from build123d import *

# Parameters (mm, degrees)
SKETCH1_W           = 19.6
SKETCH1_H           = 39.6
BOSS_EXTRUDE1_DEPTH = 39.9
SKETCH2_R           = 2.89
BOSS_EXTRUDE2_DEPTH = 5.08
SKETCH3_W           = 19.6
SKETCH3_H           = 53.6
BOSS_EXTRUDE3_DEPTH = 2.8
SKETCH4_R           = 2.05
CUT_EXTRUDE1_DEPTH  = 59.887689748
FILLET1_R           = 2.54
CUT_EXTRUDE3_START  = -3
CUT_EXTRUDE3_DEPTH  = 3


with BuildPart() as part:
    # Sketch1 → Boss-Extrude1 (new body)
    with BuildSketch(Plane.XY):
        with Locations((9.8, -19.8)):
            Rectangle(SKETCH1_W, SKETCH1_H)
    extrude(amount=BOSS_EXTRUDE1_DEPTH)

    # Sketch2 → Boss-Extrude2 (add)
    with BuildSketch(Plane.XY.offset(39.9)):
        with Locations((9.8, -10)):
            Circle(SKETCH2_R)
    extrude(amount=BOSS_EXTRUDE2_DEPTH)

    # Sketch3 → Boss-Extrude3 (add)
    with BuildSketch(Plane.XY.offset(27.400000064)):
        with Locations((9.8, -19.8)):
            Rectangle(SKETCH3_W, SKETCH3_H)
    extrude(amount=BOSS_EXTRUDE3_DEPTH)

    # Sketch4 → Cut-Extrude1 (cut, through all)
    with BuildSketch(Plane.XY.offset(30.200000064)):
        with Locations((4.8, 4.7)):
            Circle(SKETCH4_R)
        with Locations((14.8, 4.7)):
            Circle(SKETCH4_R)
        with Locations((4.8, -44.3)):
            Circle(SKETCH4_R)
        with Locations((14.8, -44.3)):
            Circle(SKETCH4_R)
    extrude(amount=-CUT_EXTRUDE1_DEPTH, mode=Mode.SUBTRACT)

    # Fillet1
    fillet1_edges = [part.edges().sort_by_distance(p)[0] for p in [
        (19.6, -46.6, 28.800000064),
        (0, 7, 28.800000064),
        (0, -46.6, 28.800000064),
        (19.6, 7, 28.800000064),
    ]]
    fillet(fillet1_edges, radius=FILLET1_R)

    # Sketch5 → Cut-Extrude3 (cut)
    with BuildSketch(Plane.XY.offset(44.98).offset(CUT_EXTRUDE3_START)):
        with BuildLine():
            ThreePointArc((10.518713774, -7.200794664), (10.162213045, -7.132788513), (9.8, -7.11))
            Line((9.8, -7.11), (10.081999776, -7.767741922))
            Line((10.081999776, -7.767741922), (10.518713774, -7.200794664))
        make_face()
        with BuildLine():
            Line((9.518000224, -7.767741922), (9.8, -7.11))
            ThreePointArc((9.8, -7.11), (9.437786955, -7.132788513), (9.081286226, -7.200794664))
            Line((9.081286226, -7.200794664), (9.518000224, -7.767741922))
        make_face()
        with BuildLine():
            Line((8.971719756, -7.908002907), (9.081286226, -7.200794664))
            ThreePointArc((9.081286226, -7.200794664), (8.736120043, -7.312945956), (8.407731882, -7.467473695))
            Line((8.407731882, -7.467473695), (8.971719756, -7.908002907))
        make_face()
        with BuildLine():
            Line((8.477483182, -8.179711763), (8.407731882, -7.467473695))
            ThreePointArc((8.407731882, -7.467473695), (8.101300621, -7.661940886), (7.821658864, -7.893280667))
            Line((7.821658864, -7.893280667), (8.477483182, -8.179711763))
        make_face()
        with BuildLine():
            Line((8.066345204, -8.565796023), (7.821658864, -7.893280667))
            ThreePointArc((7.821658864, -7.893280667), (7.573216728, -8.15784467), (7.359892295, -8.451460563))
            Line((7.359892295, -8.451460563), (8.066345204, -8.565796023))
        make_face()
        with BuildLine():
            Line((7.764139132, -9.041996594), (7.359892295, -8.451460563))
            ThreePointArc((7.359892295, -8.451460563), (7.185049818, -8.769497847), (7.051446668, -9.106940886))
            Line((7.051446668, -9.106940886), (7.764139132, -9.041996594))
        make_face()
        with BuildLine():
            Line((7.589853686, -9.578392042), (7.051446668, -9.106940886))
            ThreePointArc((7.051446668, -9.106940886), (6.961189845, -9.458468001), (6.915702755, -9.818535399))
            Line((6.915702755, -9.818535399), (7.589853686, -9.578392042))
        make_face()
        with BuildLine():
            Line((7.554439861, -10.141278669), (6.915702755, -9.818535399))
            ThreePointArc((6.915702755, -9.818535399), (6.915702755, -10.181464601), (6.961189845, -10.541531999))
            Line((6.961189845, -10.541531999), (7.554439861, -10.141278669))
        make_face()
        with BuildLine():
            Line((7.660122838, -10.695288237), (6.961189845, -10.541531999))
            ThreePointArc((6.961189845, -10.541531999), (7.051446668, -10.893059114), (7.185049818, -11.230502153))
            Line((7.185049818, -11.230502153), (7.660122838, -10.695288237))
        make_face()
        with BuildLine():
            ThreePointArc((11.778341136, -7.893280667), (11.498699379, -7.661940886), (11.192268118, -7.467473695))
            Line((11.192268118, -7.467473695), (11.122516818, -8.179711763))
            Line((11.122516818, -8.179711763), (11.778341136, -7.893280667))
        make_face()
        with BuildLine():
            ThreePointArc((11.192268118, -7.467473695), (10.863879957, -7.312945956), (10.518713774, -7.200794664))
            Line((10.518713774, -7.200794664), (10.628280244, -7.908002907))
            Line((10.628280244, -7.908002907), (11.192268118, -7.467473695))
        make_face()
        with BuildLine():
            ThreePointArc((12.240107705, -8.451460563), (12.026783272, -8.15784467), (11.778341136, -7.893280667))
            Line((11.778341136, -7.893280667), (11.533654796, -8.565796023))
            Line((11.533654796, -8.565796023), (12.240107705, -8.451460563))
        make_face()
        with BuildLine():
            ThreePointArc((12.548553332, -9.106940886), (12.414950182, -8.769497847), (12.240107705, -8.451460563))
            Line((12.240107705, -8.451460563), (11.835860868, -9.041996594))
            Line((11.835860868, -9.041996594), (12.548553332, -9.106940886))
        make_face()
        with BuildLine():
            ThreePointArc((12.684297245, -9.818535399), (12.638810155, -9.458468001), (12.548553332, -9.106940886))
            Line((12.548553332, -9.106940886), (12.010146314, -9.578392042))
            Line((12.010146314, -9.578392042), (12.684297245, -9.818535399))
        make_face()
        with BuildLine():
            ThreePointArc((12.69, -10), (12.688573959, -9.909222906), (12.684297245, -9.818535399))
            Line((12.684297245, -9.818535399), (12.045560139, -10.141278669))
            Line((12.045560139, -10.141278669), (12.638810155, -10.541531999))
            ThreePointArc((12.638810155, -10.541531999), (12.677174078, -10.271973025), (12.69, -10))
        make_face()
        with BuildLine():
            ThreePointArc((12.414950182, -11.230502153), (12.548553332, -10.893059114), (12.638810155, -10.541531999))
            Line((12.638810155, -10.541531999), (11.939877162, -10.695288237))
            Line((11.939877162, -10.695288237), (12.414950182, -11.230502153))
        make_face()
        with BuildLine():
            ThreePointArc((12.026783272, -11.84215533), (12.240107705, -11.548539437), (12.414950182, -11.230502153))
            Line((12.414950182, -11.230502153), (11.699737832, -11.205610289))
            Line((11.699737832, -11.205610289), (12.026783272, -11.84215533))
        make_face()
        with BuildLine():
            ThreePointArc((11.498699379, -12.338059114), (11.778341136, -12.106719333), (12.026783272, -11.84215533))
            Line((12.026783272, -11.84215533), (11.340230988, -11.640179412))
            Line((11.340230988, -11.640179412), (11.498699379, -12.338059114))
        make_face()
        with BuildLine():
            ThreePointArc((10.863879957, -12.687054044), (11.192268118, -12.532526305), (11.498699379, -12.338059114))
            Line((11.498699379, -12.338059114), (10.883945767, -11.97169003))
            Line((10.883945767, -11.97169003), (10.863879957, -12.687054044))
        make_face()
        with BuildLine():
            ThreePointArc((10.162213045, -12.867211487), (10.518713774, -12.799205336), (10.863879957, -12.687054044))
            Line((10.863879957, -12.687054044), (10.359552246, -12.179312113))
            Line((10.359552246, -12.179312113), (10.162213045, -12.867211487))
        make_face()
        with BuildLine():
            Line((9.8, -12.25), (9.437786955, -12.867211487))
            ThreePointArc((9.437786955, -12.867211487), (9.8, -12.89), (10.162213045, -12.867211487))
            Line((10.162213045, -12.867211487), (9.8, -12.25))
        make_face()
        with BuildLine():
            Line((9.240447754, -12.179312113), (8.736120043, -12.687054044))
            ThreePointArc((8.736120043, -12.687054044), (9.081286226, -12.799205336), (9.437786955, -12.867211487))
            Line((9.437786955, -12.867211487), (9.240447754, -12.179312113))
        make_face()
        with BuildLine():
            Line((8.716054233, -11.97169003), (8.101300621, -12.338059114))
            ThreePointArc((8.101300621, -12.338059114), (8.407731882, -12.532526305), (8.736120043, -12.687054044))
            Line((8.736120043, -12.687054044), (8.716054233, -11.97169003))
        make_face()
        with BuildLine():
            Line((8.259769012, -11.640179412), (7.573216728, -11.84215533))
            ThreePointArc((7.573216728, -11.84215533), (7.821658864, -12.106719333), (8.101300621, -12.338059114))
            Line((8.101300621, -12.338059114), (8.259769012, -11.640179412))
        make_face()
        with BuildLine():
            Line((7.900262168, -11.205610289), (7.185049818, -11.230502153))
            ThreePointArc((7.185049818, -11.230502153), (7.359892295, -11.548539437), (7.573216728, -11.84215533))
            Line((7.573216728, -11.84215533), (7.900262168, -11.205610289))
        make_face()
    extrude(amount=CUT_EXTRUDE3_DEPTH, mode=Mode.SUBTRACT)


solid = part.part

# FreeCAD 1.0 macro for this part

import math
import FreeCAD as App
import Part
import Sketcher
from FreeCAD import Vector


def edges_at(feature, points):
    """Names of the edges that pass closest to the given points."""
    edges = feature.Shape.Edges
    near = lambda p: min(range(len(edges)), key=lambda i: edges[i].distToShape(Part.Vertex(*p))[0])
    return sorted({f"Edge{near(p) + 1}" for p in points})


def add_polygon(sketch, points):
    """Adds a closed chain of lines whose ends are joined by coincident constraints."""
    first, n = sketch.GeometryCount, len(points)
    for a, b in zip(points, points[1:] + points[:1]):
        sketch.addGeometry(Part.LineSegment(App.Vector(*a, 0), App.Vector(*b, 0)), False)
    for i in range(n):
        sketch.addConstraint(Sketcher.Constraint("Coincident", first + i, 2, first + (i + 1) % n, 1))

doc = App.newDocument("Part")
body = doc.addObject("PartDesign::Body", "Body")

# Sketch on XY plane
sketch1 = doc.addObject("Sketcher::SketchObject", "Sketch")
body.addObject(sketch1)
sketch1.AttachmentSupport = (doc.XY_Plane, [""])
sketch1.MapMode = "FlatFace"
add_polygon(sketch1, [(0, 0), (0, -39.6), (19.6, -39.6), (19.6, 0)])  # lines 0-3
sketch1.addConstraint([
    Sketcher.Constraint("Vertical", 0),
    Sketcher.Constraint("Horizontal", 1),
    Sketcher.Constraint("Vertical", 2),
    Sketcher.Constraint("Horizontal", 3),
    Sketcher.Constraint("Coincident", 3, 2, -1, 1),
    Sketcher.Constraint("DistanceX", 1, 1, 1, 2, 19.6),
    Sketcher.Constraint("DistanceY", 0, 2, 0, 1, 39.6),
])
pad1 = doc.addObject("PartDesign::Pad", "Pad")
body.addObject(pad1)
pad1.Profile = sketch1
pad1.Length = 39.9

# Sketch on XY plane
sketch2 = doc.addObject("Sketcher::SketchObject", "Sketch001")
body.addObject(sketch2)
sketch2.AttachmentSupport = (doc.XY_Plane, [""])
sketch2.MapMode = "FlatFace"
sketch2.AttachmentOffset = App.Placement(Vector(0, 0, 39.9), App.Rotation())
sketch2.addGeometry(Part.Circle(Vector(9.8, -10, 0), Vector(0, 0, 1), 2.89), False)
sketch2.addConstraint([
    Sketcher.Constraint("Diameter", 0, 5.78),
    Sketcher.Constraint("DistanceY", 0, 3, -1, 1, 10.0),
    Sketcher.Constraint("DistanceX", -1, 1, 0, 3, 9.8),
])
pad2 = doc.addObject("PartDesign::Pad", "Pad001")
body.addObject(pad2)
pad2.Profile = sketch2
pad2.Length = 5.08

# Sketch on XY plane
sketch3 = doc.addObject("Sketcher::SketchObject", "Sketch002")
body.addObject(sketch3)
sketch3.AttachmentSupport = (doc.XY_Plane, [""])
sketch3.MapMode = "FlatFace"
sketch3.AttachmentOffset = App.Placement(Vector(0, 0, 27.4), App.Rotation())
add_polygon(sketch3, [(0, 7), (0, -46.6), (19.6, -46.6), (19.6, 7)])  # lines 0-3
sketch3.addConstraint([
    Sketcher.Constraint("Vertical", 0),
    Sketcher.Constraint("Horizontal", 1),
    Sketcher.Constraint("Vertical", 2),
    Sketcher.Constraint("Horizontal", 3),
    Sketcher.Constraint("PointOnObject", 0, 2, -2),
    Sketcher.Constraint("DistanceX", 1, 1, 1, 2, 19.6),
    Sketcher.Constraint("DistanceY", 0, 2, 0, 1, 53.6),
    Sketcher.Constraint("DistanceY", -1, 1, 2, 2, 7.0),
])
pad3 = doc.addObject("PartDesign::Pad", "Pad002")
body.addObject(pad3)
pad3.Profile = sketch3
pad3.Length = 2.8

# Sketch on XY plane
sketch4 = doc.addObject("Sketcher::SketchObject", "Sketch003")
body.addObject(sketch4)
sketch4.AttachmentSupport = (doc.XY_Plane, [""])
sketch4.MapMode = "FlatFace"
sketch4.AttachmentOffset = App.Placement(Vector(0, 0, 30.2), App.Rotation())
sketch4.addGeometry([
    Part.Circle(Vector(4.8, 4.7, 0), Vector(0, 0, 1), 2.05),
    Part.Circle(Vector(14.8, 4.7, 0), Vector(0, 0, 1), 2.05),
    Part.Circle(Vector(4.8, -44.3, 0), Vector(0, 0, 1), 2.05),
    Part.Circle(Vector(14.8, -44.3, 0), Vector(0, 0, 1), 2.05),
], False)
sketch4.addConstraint([
    Sketcher.Constraint("Equal", 0, 1),
    Sketcher.Constraint("Equal", 1, 2),
    Sketcher.Constraint("Equal", 2, 3),
    Sketcher.Constraint("Horizontal", 0, 3, 1, 3),
    Sketcher.Constraint("Horizontal", 2, 3, 3, 3),
    Sketcher.Constraint("Vertical", 0, 3, 2, 3),
    Sketcher.Constraint("Vertical", 1, 3, 3, 3),
    Sketcher.Constraint("Diameter", 0, 4.1),
    Sketcher.Constraint("DistanceX", 0, 3, 1, 3, 10.0),
    Sketcher.Constraint("DistanceY", 2, 3, 0, 3, 49.0),
    Sketcher.Constraint("DistanceX", -1, 1, 0, 3, 4.8),
    Sketcher.Constraint("DistanceY", -1, 1, 0, 3, 4.7),
])
pocket1 = doc.addObject("PartDesign::Pocket", "Pocket")
body.addObject(pocket1)
pocket1.Profile = sketch4
pocket1.Type = "ThroughAll"
doc.recompute()

fillet = doc.addObject("PartDesign::Fillet", "Fillet")
body.addObject(fillet)
fillet.Base = (pocket1, edges_at(pocket1, [
    (19.6, -46.6, 28.8),
    (0, 7, 28.8),
    (0, -46.6, 28.8),
    (19.6, 7, 28.8),
]))
fillet.Radius = 2.54

# Sketch on XY plane
sketch5 = doc.addObject("Sketcher::SketchObject", "Sketch004")
body.addObject(sketch5)
sketch5.AttachmentSupport = (doc.XY_Plane, [""])
sketch5.MapMode = "FlatFace"
sketch5.AttachmentOffset = App.Placement(Vector(0, 0, 41.98), App.Rotation())
sketch5.addGeometry([
    Part.ArcOfCircle(Part.Circle(Vector(9.8, -10, 0), Vector(0, 0, 1), 2.89), math.radians(75.6), math.radians(90)),  # 0
    Part.LineSegment(Vector(9.8, -7.11, 0), Vector(10.082, -7.767742, 0)),  # 1
    Part.LineSegment(Vector(10.082, -7.767742, 0), Vector(10.518714, -7.200795, 0)),  # 2
    Part.LineSegment(Vector(9.518, -7.767742, 0), Vector(9.8, -7.11, 0)),  # 3
    Part.ArcOfCircle(Part.Circle(Vector(9.8, -10, 0), Vector(0, 0, 1), 2.89), math.radians(90), math.radians(104.4)),  # 4
    Part.LineSegment(Vector(9.081286, -7.200795, 0), Vector(9.518, -7.767742, 0)),  # 5
    Part.LineSegment(Vector(8.97172, -7.908003, 0), Vector(9.081286, -7.200795, 0)),  # 6
    Part.ArcOfCircle(Part.Circle(Vector(9.8, -10, 0), Vector(0, 0, 1), 2.89), math.radians(104.4), math.radians(118.8)),  # 7
    Part.LineSegment(Vector(8.407732, -7.467474, 0), Vector(8.97172, -7.908003, 0)),  # 8
    Part.LineSegment(Vector(8.477483, -8.179712, 0), Vector(8.407732, -7.467474, 0)),  # 9
    Part.ArcOfCircle(Part.Circle(Vector(9.8, -10, 0), Vector(0, 0, 1), 2.89), math.radians(118.8), math.radians(133.2)),  # 10
    Part.LineSegment(Vector(7.821659, -7.893281, 0), Vector(8.477483, -8.179712, 0)),  # 11
    Part.LineSegment(Vector(8.066345, -8.565796, 0), Vector(7.821659, -7.893281, 0)),  # 12
    Part.ArcOfCircle(Part.Circle(Vector(9.8, -10, 0), Vector(0, 0, 1), 2.89), math.radians(133.2), math.radians(147.6)),  # 13
    Part.LineSegment(Vector(7.359892, -8.451461, 0), Vector(8.066345, -8.565796, 0)),  # 14
    Part.LineSegment(Vector(7.764139, -9.041997, 0), Vector(7.359892, -8.451461, 0)),  # 15
    Part.ArcOfCircle(Part.Circle(Vector(9.8, -10, 0), Vector(0, 0, 1), 2.89), math.radians(147.6), math.radians(162)),  # 16
    Part.LineSegment(Vector(7.051447, -9.106941, 0), Vector(7.764139, -9.041997, 0)),  # 17
    Part.LineSegment(Vector(7.589854, -9.578392, 0), Vector(7.051447, -9.106941, 0)),  # 18
    Part.ArcOfCircle(Part.Circle(Vector(9.8, -10, 0), Vector(0, 0, 1), 2.89), math.radians(162), math.radians(176.4)),  # 19
    Part.LineSegment(Vector(6.915703, -9.818535, 0), Vector(7.589854, -9.578392, 0)),  # 20
    Part.LineSegment(Vector(7.55444, -10.141279, 0), Vector(6.915703, -9.818535, 0)),  # 21
    Part.ArcOfCircle(Part.Circle(Vector(9.8, -10, 0), Vector(0, 0, 1), 2.89), math.radians(176.4), math.radians(190.8)),  # 22
    Part.LineSegment(Vector(6.96119, -10.541532, 0), Vector(7.55444, -10.141279, 0)),  # 23
    Part.LineSegment(Vector(7.660123, -10.695288, 0), Vector(6.96119, -10.541532, 0)),  # 24
    Part.ArcOfCircle(Part.Circle(Vector(9.8, -10, 0), Vector(0, 0, 1), 2.89), math.radians(-169.2), math.radians(-154.8)),  # 25
    Part.LineSegment(Vector(7.18505, -11.230502, 0), Vector(7.660123, -10.695288, 0)),  # 26
    Part.ArcOfCircle(Part.Circle(Vector(9.8, -10, 0), Vector(0, 0, 1), 2.89), math.radians(46.8), math.radians(61.2)),  # 27
    Part.LineSegment(Vector(11.192268, -7.467474, 0), Vector(11.122517, -8.179712, 0)),  # 28
    Part.LineSegment(Vector(11.122517, -8.179712, 0), Vector(11.778341, -7.893281, 0)),  # 29
    Part.ArcOfCircle(Part.Circle(Vector(9.8, -10, 0), Vector(0, 0, 1), 2.89), math.radians(61.2), math.radians(75.6)),  # 30
    Part.LineSegment(Vector(10.518714, -7.200795, 0), Vector(10.62828, -7.908003, 0)),  # 31
    Part.LineSegment(Vector(10.62828, -7.908003, 0), Vector(11.192268, -7.467474, 0)),  # 32
    Part.ArcOfCircle(Part.Circle(Vector(9.8, -10, 0), Vector(0, 0, 1), 2.89), math.radians(32.4), math.radians(46.8)),  # 33
    Part.LineSegment(Vector(11.778341, -7.893281, 0), Vector(11.533655, -8.565796, 0)),  # 34
    Part.LineSegment(Vector(11.533655, -8.565796, 0), Vector(12.240108, -8.451461, 0)),  # 35
    Part.ArcOfCircle(Part.Circle(Vector(9.8, -10, 0), Vector(0, 0, 1), 2.89), math.radians(18), math.radians(32.4)),  # 36
    Part.LineSegment(Vector(12.240108, -8.451461, 0), Vector(11.835861, -9.041997, 0)),  # 37
    Part.LineSegment(Vector(11.835861, -9.041997, 0), Vector(12.548553, -9.106941, 0)),  # 38
    Part.ArcOfCircle(Part.Circle(Vector(9.8, -10, 0), Vector(0, 0, 1), 2.89), math.radians(3.6), math.radians(18)),  # 39
    Part.LineSegment(Vector(12.548553, -9.106941, 0), Vector(12.010146, -9.578392, 0)),  # 40
    Part.LineSegment(Vector(12.010146, -9.578392, 0), Vector(12.684297, -9.818535, 0)),  # 41
    Part.ArcOfCircle(Part.Circle(Vector(9.799999, -10, 0), Vector(0, 0, 1), 2.890001), math.radians(0.000001), math.radians(3.6)),  # 42
    Part.LineSegment(Vector(12.684297, -9.818535, 0), Vector(12.04556, -10.141279, 0)),  # 43
    Part.LineSegment(Vector(12.04556, -10.141279, 0), Vector(12.63881, -10.541532, 0)),  # 44
    Part.ArcOfCircle(Part.Circle(Vector(9.8, -10, 0), Vector(0, 0, 1), 2.89), math.radians(-10.8), math.radians(0)),  # 45
    Part.ArcOfCircle(Part.Circle(Vector(9.8, -10, 0), Vector(0, 0, 1), 2.89), math.radians(-25.2), math.radians(-10.8)),  # 46
    Part.LineSegment(Vector(12.63881, -10.541532, 0), Vector(11.939877, -10.695288, 0)),  # 47
    Part.LineSegment(Vector(11.939877, -10.695288, 0), Vector(12.41495, -11.230502, 0)),  # 48
    Part.ArcOfCircle(Part.Circle(Vector(9.8, -10, 0), Vector(0, 0, 1), 2.89), math.radians(-39.6), math.radians(-25.2)),  # 49
    Part.LineSegment(Vector(12.41495, -11.230502, 0), Vector(11.699738, -11.20561, 0)),  # 50
    Part.LineSegment(Vector(11.699738, -11.20561, 0), Vector(12.026783, -11.842155, 0)),  # 51
    Part.ArcOfCircle(Part.Circle(Vector(9.8, -10, 0), Vector(0, 0, 1), 2.89), math.radians(-54), math.radians(-39.6)),  # 52
    Part.LineSegment(Vector(12.026783, -11.842155, 0), Vector(11.340231, -11.640179, 0)),  # 53
    Part.LineSegment(Vector(11.340231, -11.640179, 0), Vector(11.498699, -12.338059, 0)),  # 54
    Part.ArcOfCircle(Part.Circle(Vector(9.8, -10, 0), Vector(0, 0, 1), 2.89), math.radians(-68.4), math.radians(-54)),  # 55
    Part.LineSegment(Vector(11.498699, -12.338059, 0), Vector(10.883946, -11.97169, 0)),  # 56
    Part.LineSegment(Vector(10.883946, -11.97169, 0), Vector(10.86388, -12.687054, 0)),  # 57
    Part.ArcOfCircle(Part.Circle(Vector(9.8, -10, 0), Vector(0, 0, 1), 2.89), math.radians(-82.8), math.radians(-68.4)),  # 58
    Part.LineSegment(Vector(10.86388, -12.687054, 0), Vector(10.359552, -12.179312, 0)),  # 59
    Part.LineSegment(Vector(10.359552, -12.179312, 0), Vector(10.162213, -12.867211, 0)),  # 60
    Part.LineSegment(Vector(9.8, -12.25, 0), Vector(9.437787, -12.867211, 0)),  # 61
    Part.ArcOfCircle(Part.Circle(Vector(9.8, -10, 0), Vector(0, 0, 1), 2.89), math.radians(-97.2), math.radians(-82.8)),  # 62
    Part.LineSegment(Vector(10.162213, -12.867211, 0), Vector(9.8, -12.25, 0)),  # 63
    Part.LineSegment(Vector(9.240448, -12.179312, 0), Vector(8.73612, -12.687054, 0)),  # 64
    Part.ArcOfCircle(Part.Circle(Vector(9.8, -10, 0), Vector(0, 0, 1), 2.89), math.radians(-111.6), math.radians(-97.2)),  # 65
    Part.LineSegment(Vector(9.437787, -12.867211, 0), Vector(9.240448, -12.179312, 0)),  # 66
    Part.LineSegment(Vector(8.716054, -11.97169, 0), Vector(8.101301, -12.338059, 0)),  # 67
    Part.ArcOfCircle(Part.Circle(Vector(9.8, -10, 0), Vector(0, 0, 1), 2.89), math.radians(-126), math.radians(-111.6)),  # 68
    Part.LineSegment(Vector(8.73612, -12.687054, 0), Vector(8.716054, -11.97169, 0)),  # 69
    Part.LineSegment(Vector(8.259769, -11.640179, 0), Vector(7.573217, -11.842155, 0)),  # 70
    Part.ArcOfCircle(Part.Circle(Vector(9.8, -10, 0), Vector(0, 0, 1), 2.89), math.radians(-140.4), math.radians(-126)),  # 71
    Part.LineSegment(Vector(8.101301, -12.338059, 0), Vector(8.259769, -11.640179, 0)),  # 72
    Part.LineSegment(Vector(7.900262, -11.20561, 0), Vector(7.18505, -11.230502, 0)),  # 73
    Part.ArcOfCircle(Part.Circle(Vector(9.8, -10, 0), Vector(0, 0, 1), 2.89), math.radians(-154.8), math.radians(-140.4)),  # 74
    Part.LineSegment(Vector(7.573217, -11.842155, 0), Vector(7.900262, -11.20561, 0)),  # 75
], False)
sketch5.addConstraint([
    Sketcher.Constraint("Coincident", 0, 2, 1, 1),
    Sketcher.Constraint("Coincident", 1, 2, 2, 1),
    Sketcher.Constraint("Coincident", 2, 2, 0, 1),
    Sketcher.Constraint("Coincident", 3, 2, 4, 1),
    Sketcher.Constraint("Coincident", 4, 2, 5, 1),
    Sketcher.Constraint("Coincident", 5, 2, 3, 1),
    Sketcher.Constraint("Coincident", 6, 2, 7, 1),
    Sketcher.Constraint("Coincident", 7, 2, 8, 1),
    Sketcher.Constraint("Coincident", 8, 2, 6, 1),
    Sketcher.Constraint("Coincident", 9, 2, 10, 1),
    Sketcher.Constraint("Coincident", 10, 2, 11, 1),
    Sketcher.Constraint("Coincident", 11, 2, 9, 1),
    Sketcher.Constraint("Coincident", 12, 2, 13, 1),
    Sketcher.Constraint("Coincident", 13, 2, 14, 1),
    Sketcher.Constraint("Coincident", 14, 2, 12, 1),
    Sketcher.Constraint("Coincident", 15, 2, 16, 1),
    Sketcher.Constraint("Coincident", 16, 2, 17, 1),
    Sketcher.Constraint("Coincident", 17, 2, 15, 1),
    Sketcher.Constraint("Coincident", 18, 2, 19, 1),
    Sketcher.Constraint("Coincident", 19, 2, 20, 1),
    Sketcher.Constraint("Coincident", 20, 2, 18, 1),
    Sketcher.Constraint("Coincident", 21, 2, 22, 1),
    Sketcher.Constraint("Coincident", 22, 2, 23, 1),
    Sketcher.Constraint("Coincident", 23, 2, 21, 1),
    Sketcher.Constraint("Coincident", 24, 2, 25, 1),
    Sketcher.Constraint("Coincident", 25, 2, 26, 1),
    Sketcher.Constraint("Coincident", 26, 2, 24, 1),
    Sketcher.Constraint("Coincident", 27, 2, 28, 1),
    Sketcher.Constraint("Coincident", 28, 2, 29, 1),
    Sketcher.Constraint("Coincident", 29, 2, 27, 1),
    Sketcher.Constraint("Coincident", 30, 2, 31, 1),
    Sketcher.Constraint("Coincident", 31, 2, 32, 1),
    Sketcher.Constraint("Coincident", 32, 2, 30, 1),
    Sketcher.Constraint("Coincident", 33, 2, 34, 1),
    Sketcher.Constraint("Coincident", 34, 2, 35, 1),
    Sketcher.Constraint("Coincident", 35, 2, 33, 1),
    Sketcher.Constraint("Coincident", 36, 2, 37, 1),
    Sketcher.Constraint("Coincident", 37, 2, 38, 1),
    Sketcher.Constraint("Coincident", 38, 2, 36, 1),
    Sketcher.Constraint("Coincident", 39, 2, 40, 1),
    Sketcher.Constraint("Coincident", 40, 2, 41, 1),
    Sketcher.Constraint("Coincident", 41, 2, 39, 1),
    Sketcher.Constraint("Coincident", 42, 2, 43, 1),
    Sketcher.Constraint("Coincident", 43, 2, 44, 1),
    Sketcher.Constraint("Coincident", 44, 2, 45, 1),
    Sketcher.Constraint("Tangent", 45, 2, 42, 1),
    Sketcher.Constraint("Coincident", 46, 2, 47, 1),
    Sketcher.Constraint("Coincident", 47, 2, 48, 1),
    Sketcher.Constraint("Coincident", 48, 2, 46, 1),
    Sketcher.Constraint("Coincident", 49, 2, 50, 1),
    Sketcher.Constraint("Coincident", 50, 2, 51, 1),
    Sketcher.Constraint("Coincident", 51, 2, 49, 1),
    Sketcher.Constraint("Coincident", 52, 2, 53, 1),
    Sketcher.Constraint("Coincident", 53, 2, 54, 1),
    Sketcher.Constraint("Coincident", 54, 2, 52, 1),
    Sketcher.Constraint("Coincident", 55, 2, 56, 1),
    Sketcher.Constraint("Coincident", 56, 2, 57, 1),
    Sketcher.Constraint("Coincident", 57, 2, 55, 1),
    Sketcher.Constraint("Coincident", 58, 2, 59, 1),
    Sketcher.Constraint("Coincident", 59, 2, 60, 1),
    Sketcher.Constraint("Coincident", 60, 2, 58, 1),
    Sketcher.Constraint("Coincident", 61, 2, 62, 1),
    Sketcher.Constraint("Coincident", 62, 2, 63, 1),
    Sketcher.Constraint("Coincident", 63, 2, 61, 1),
    Sketcher.Constraint("Coincident", 64, 2, 65, 1),
    Sketcher.Constraint("Coincident", 65, 2, 66, 1),
    Sketcher.Constraint("Coincident", 66, 2, 64, 1),
    Sketcher.Constraint("Coincident", 67, 2, 68, 1),
    Sketcher.Constraint("Coincident", 68, 2, 69, 1),
    Sketcher.Constraint("Coincident", 69, 2, 67, 1),
    Sketcher.Constraint("Coincident", 70, 2, 71, 1),
    Sketcher.Constraint("Coincident", 71, 2, 72, 1),
    Sketcher.Constraint("Coincident", 72, 2, 70, 1),
    Sketcher.Constraint("Coincident", 73, 2, 74, 1),
    Sketcher.Constraint("Coincident", 74, 2, 75, 1),
    Sketcher.Constraint("Coincident", 75, 2, 73, 1),
    Sketcher.Constraint("Coincident", 4, 3, 0, 3),
    Sketcher.Constraint("Coincident", 7, 3, 0, 3),
    Sketcher.Constraint("Coincident", 10, 3, 0, 3),
    Sketcher.Constraint("Coincident", 13, 3, 0, 3),
    Sketcher.Constraint("Coincident", 16, 3, 0, 3),
    Sketcher.Constraint("Coincident", 19, 3, 0, 3),
    Sketcher.Constraint("Coincident", 22, 3, 0, 3),
    Sketcher.Constraint("Coincident", 25, 3, 0, 3),
    Sketcher.Constraint("Coincident", 27, 3, 0, 3),
    Sketcher.Constraint("Coincident", 30, 3, 0, 3),
    Sketcher.Constraint("Coincident", 33, 3, 0, 3),
    Sketcher.Constraint("Coincident", 36, 3, 0, 3),
    Sketcher.Constraint("Coincident", 39, 3, 0, 3),
    Sketcher.Constraint("Coincident", 42, 3, 0, 3),
    Sketcher.Constraint("Coincident", 46, 3, 0, 3),
    Sketcher.Constraint("Coincident", 49, 3, 0, 3),
    Sketcher.Constraint("Coincident", 52, 3, 0, 3),
    Sketcher.Constraint("Coincident", 55, 3, 0, 3),
    Sketcher.Constraint("Coincident", 58, 3, 0, 3),
    Sketcher.Constraint("Coincident", 62, 3, 0, 3),
    Sketcher.Constraint("Coincident", 65, 3, 0, 3),
    Sketcher.Constraint("Coincident", 68, 3, 0, 3),
    Sketcher.Constraint("Coincident", 71, 3, 0, 3),
    Sketcher.Constraint("Coincident", 74, 3, 0, 3),
    Sketcher.Constraint("Coincident", 3, 2, 0, 2),
    Sketcher.Constraint("Coincident", 6, 2, 4, 2),
    Sketcher.Constraint("Coincident", 9, 2, 7, 2),
    Sketcher.Constraint("Coincident", 12, 2, 10, 2),
    Sketcher.Constraint("Coincident", 15, 2, 13, 2),
    Sketcher.Constraint("Coincident", 18, 2, 16, 2),
    Sketcher.Constraint("Coincident", 21, 2, 19, 2),
    Sketcher.Constraint("Coincident", 24, 2, 22, 2),
    Sketcher.Constraint("Coincident", 30, 2, 2, 2),
    Sketcher.Constraint("Coincident", 32, 2, 27, 2),
    Sketcher.Constraint("Coincident", 33, 2, 29, 2),
    Sketcher.Constraint("Coincident", 36, 2, 35, 2),
    Sketcher.Constraint("Coincident", 39, 2, 38, 2),
    Sketcher.Constraint("Coincident", 42, 2, 41, 2),
    Sketcher.Constraint("Coincident", 46, 2, 44, 2),
    Sketcher.Constraint("Coincident", 49, 2, 48, 2),
    Sketcher.Constraint("Coincident", 52, 2, 51, 2),
    Sketcher.Constraint("Coincident", 55, 2, 54, 2),
    Sketcher.Constraint("Coincident", 58, 2, 57, 2),
    Sketcher.Constraint("Coincident", 62, 2, 60, 2),
    Sketcher.Constraint("Coincident", 65, 2, 61, 2),
    Sketcher.Constraint("Coincident", 68, 2, 64, 2),
    Sketcher.Constraint("Coincident", 71, 2, 67, 2),
    Sketcher.Constraint("Coincident", 73, 2, 25, 2),
    Sketcher.Constraint("Coincident", 74, 2, 70, 2),
    Sketcher.Constraint("Horizontal", 2, 2, 4, 2),
    Sketcher.Constraint("Horizontal", 1, 2, 5, 2),
    Sketcher.Constraint("Horizontal", 9, 2, 27, 2),
    Sketcher.Constraint("Horizontal", 11, 2, 28, 2),
    Sketcher.Constraint("Horizontal", 12, 2, 29, 2),
    Sketcher.Constraint("Horizontal", 8, 2, 31, 2),
    Sketcher.Constraint("Horizontal", 14, 2, 34, 2),
    Sketcher.Constraint("Horizontal", 15, 2, 35, 2),
    Sketcher.Constraint("Horizontal", 17, 2, 37, 2),
    Sketcher.Constraint("Horizontal", 18, 2, 38, 2),
    Sketcher.Constraint("Horizontal", 20, 2, 40, 2),
    Sketcher.Constraint("Horizontal", 21, 2, 41, 2),
    Sketcher.Constraint("Horizontal", 23, 2, 43, 2),
    Sketcher.Constraint("Horizontal", 24, 2, 44, 2),
    Sketcher.Constraint("Horizontal", 74, 3, 45, 2),
    Sketcher.Constraint("Horizontal", 26, 2, 47, 2),
    Sketcher.Constraint("Horizontal", 25, 2, 48, 2),
    Sketcher.Constraint("Horizontal", 60, 2, 61, 2),
    Sketcher.Constraint("Horizontal", 58, 2, 64, 2),
    Sketcher.Constraint("Horizontal", 59, 2, 66, 2),
    Sketcher.Constraint("Horizontal", 55, 2, 67, 2),
    Sketcher.Constraint("Horizontal", 56, 2, 69, 2),
    Sketcher.Constraint("Horizontal", 52, 2, 70, 2),
    Sketcher.Constraint("Horizontal", 53, 2, 72, 2),
    Sketcher.Constraint("Horizontal", 50, 2, 75, 2),
    Sketcher.Constraint("Vertical", 74, 3, 0, 2),
    Sketcher.Constraint("Vertical", 3, 2, 63, 2),
    Sketcher.Constraint("Equal", 1, 2),
    Sketcher.Constraint("Equal", 2, 3),
    Sketcher.Constraint("Equal", 5, 6),
    Sketcher.Constraint("Equal", 6, 8),
    Sketcher.Constraint("Equal", 8, 9),
    Sketcher.Constraint("Equal", 9, 11),
    Sketcher.Constraint("Equal", 11, 12),
    Sketcher.Constraint("Equal", 12, 14),
    Sketcher.Constraint("Equal", 14, 15),
    Sketcher.Constraint("Equal", 15, 17),
    Sketcher.Constraint("Equal", 17, 18),
    Sketcher.Constraint("Equal", 18, 20),
    Sketcher.Constraint("Equal", 20, 21),
    Sketcher.Constraint("Equal", 21, 23),
    Sketcher.Constraint("Equal", 23, 24),
    Sketcher.Constraint("Equal", 24, 26),
    Sketcher.Constraint("Equal", 26, 28),
    Sketcher.Constraint("Equal", 29, 31),
    Sketcher.Constraint("Equal", 32, 34),
    Sketcher.Constraint("Equal", 35, 37),
    Sketcher.Constraint("Equal", 38, 40),
    Sketcher.Constraint("Equal", 41, 43),
    Sketcher.Constraint("Equal", 44, 47),
    Sketcher.Constraint("Equal", 48, 50),
    Sketcher.Constraint("Equal", 50, 51),
    Sketcher.Constraint("Equal", 51, 53),
    Sketcher.Constraint("Equal", 53, 54),
    Sketcher.Constraint("Equal", 54, 56),
    Sketcher.Constraint("Equal", 56, 57),
    Sketcher.Constraint("Equal", 57, 59),
    Sketcher.Constraint("Equal", 59, 60),
    Sketcher.Constraint("Equal", 60, 61),
    Sketcher.Constraint("Equal", 63, 64),
    Sketcher.Constraint("Equal", 66, 67),
    Sketcher.Constraint("Equal", 69, 70),
    Sketcher.Constraint("Equal", 72, 73),
    Sketcher.Constraint("Radius", 0, 2.89),
    Sketcher.Constraint("DistanceY", 0, 3, -1, 1, 10.0),
    Sketcher.Constraint("DistanceX", -1, 1, 0, 3, 9.8),
    Sketcher.Constraint("DistanceY", 63, 2, -1, 1, 12.25),
    Sketcher.Constraint("DistanceX", -1, 1, 1, 2, 10.082),
    Sketcher.Constraint("DistanceX", -1, 1, 54, 2, 11.498699),
    Sketcher.Constraint("DistanceY", 1, 2, -1, 1, 7.767742),
    Sketcher.Constraint("DistanceX", -1, 1, 7, 2, 8.407732),
    Sketcher.Constraint("DistanceX", -1, 1, 10, 2, 7.821659),
    Sketcher.Constraint("DistanceY", 13, 2, -1, 1, 8.451461),
    Sketcher.Constraint("DistanceY", 16, 2, -1, 1, 9.106941),
    Sketcher.Constraint("DistanceX", -1, 1, 22, 2, 6.96119),
    Sketcher.Constraint("DistanceX", -1, 1, 23, 2, 7.55444),
    Sketcher.Constraint("DistanceX", -1, 1, 25, 2, 7.18505),
    Sketcher.Constraint("DistanceY", 50, 2, -1, 1, 11.20561),
    Sketcher.Constraint("DistanceY", 56, 2, -1, 1, 11.97169),
])
pocket2 = doc.addObject("PartDesign::Pocket", "Pocket001")
body.addObject(pocket2)
pocket2.Profile = sketch5
pocket2.Length = 3
pocket2.Reversed = True

doc.recompute()
